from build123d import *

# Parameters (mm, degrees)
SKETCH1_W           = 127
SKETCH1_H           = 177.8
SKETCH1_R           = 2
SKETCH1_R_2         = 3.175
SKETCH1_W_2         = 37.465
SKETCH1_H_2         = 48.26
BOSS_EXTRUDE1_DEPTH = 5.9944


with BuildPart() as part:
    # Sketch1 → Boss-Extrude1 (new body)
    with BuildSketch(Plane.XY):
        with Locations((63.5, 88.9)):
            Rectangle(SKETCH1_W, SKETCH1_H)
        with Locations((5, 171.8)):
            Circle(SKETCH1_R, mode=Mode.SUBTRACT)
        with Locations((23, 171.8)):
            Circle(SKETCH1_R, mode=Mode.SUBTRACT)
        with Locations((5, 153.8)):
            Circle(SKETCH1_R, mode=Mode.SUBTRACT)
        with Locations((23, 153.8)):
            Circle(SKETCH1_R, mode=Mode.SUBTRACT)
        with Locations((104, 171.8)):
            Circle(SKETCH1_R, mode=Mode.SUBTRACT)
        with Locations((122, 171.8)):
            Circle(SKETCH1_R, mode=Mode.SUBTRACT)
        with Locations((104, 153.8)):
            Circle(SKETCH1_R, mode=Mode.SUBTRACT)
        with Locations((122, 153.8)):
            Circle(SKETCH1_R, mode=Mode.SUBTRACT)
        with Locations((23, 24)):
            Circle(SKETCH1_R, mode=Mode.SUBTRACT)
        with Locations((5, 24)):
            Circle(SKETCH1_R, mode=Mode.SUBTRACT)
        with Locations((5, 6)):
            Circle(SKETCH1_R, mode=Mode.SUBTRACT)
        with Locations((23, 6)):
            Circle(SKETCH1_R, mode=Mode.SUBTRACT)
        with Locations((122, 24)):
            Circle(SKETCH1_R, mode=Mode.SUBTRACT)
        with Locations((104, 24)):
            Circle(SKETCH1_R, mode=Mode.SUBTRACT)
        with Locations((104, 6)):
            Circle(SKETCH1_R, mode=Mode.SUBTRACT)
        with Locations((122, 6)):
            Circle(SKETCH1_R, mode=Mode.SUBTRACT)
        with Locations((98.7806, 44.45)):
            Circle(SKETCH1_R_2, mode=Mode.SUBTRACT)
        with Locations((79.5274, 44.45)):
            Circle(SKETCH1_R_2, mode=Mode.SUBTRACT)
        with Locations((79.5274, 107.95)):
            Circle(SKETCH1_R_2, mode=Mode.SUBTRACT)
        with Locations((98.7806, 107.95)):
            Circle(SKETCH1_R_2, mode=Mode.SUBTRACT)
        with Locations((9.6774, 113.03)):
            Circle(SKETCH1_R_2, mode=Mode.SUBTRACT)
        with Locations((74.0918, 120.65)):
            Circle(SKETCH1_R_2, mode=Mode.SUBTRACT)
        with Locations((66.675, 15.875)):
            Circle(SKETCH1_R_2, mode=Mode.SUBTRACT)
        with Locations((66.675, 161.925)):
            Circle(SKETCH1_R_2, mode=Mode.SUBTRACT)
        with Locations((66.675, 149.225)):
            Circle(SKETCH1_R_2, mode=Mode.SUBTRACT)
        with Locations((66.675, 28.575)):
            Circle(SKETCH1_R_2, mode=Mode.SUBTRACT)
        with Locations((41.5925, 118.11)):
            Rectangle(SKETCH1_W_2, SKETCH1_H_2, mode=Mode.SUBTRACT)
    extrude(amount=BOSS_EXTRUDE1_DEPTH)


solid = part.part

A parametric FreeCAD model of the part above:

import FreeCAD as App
import Part
import Sketcher
from FreeCAD import Vector
Q = App.Units.Quantity


def add_polygon(sketch, points):
    """Adds a closed chain of lines whose ends are joined by coincident constraints."""
    first, n = sketch.GeometryCount, len(points)
    for a, b in zip(points, points[1:] + points[:1]):
        sketch.addGeometry(Part.LineSegment(App.Vector(*a, 0), App.Vector(*b, 0)), False)
    for i in range(n):
        sketch.addConstraint(Sketcher.Constraint("Coincident", first + i, 2, first + (i + 1) % n, 1))

doc = App.newDocument("Part")
body = doc.addObject("PartDesign::Body", "Body")

# Sketch on XY plane
sketch1 = doc.addObject("Sketcher::SketchObject", "Sketch")
body.addObject(sketch1)
sketch1.AttachmentSupport = (doc.XY_Plane, [""])
sketch1.MapMode = "FlatFace"
add_polygon(sketch1, [(0, 177.8), (0, 0), (127, 0), (127, 177.8)])  # lines 0-3
sketch1.addGeometry(Part.Circle(Vector(5, 6, 0), Vector(0, 0, 1), 2), False)  # 4
sketch1.addGeometry(Part.Circle(Vector(5, 24, 0), Vector(0, 0, 1), 2), False)  # 5
sketch1.addGeometry(Part.Circle(Vector(23, 6, 0), Vector(0, 0, 1), 2), False)  # 6
sketch1.addGeometry(Part.Circle(Vector(23, 24, 0), Vector(0, 0, 1), 2), False)  # 7
sketch1.addGeometry(Part.Circle(Vector(66.7, 15.9, 0), Vector(0, 0, 1), 3.2), False)  # 8
sketch1.addGeometry(Part.Circle(Vector(66.7, 28.6, 0), Vector(0, 0, 1), 3.2), False)  # 9
sketch1.addGeometry(Part.Circle(Vector(79.5, 44.5, 0), Vector(0, 0, 1), 3.2), False)  # 10
sketch1.addGeometry(Part.Circle(Vector(104, 6, 0), Vector(0, 0, 1), 2), False)  # 11
sketch1.addGeometry(Part.Circle(Vector(104, 24, 0), Vector(0, 0, 1), 2), False)  # 12
sketch1.addGeometry(Part.Circle(Vector(122, 6, 0), Vector(0, 0, 1), 2), False)  # 13
sketch1.addGeometry(Part.Circle(Vector(122, 24, 0), Vector(0, 0, 1), 2), False)  # 14
sketch1.addGeometry(Part.Circle(Vector(98.8, 44.5, 0), Vector(0, 0, 1), 3.2), False)  # 15
sketch1.addGeometry(Part.Circle(Vector(9.7, 113, 0), Vector(0, 0, 1), 3.2), False)  # 16
add_polygon(sketch1, [(60.3, 94), (22.9, 94), (22.9, 142.2), (60.3, 142.2)])  # lines 17-20
sketch1.addGeometry(Part.Circle(Vector(5, 153.8, 0), Vector(0, 0, 1), 2), False)  # 21
sketch1.addGeometry(Part.Circle(Vector(5, 171.8, 0), Vector(0, 0, 1), 2), False)  # 22
sketch1.addGeometry(Part.Circle(Vector(23, 153.8, 0), Vector(0, 0, 1), 2), False)  # 23
sketch1.addGeometry(Part.Circle(Vector(23, 171.8, 0), Vector(0, 0, 1), 2), False)  # 24
sketch1.addGeometry(Part.Circle(Vector(79.5, 108, 0), Vector(0, 0, 1), 3.2), False)  # 25
sketch1.addGeometry(Part.Circle(Vector(74.1, 120.7, 0), Vector(0, 0, 1), 3.2), False)  # 26
sketch1.addGeometry(Part.Circle(Vector(98.8, 108, 0), Vector(0, 0, 1), 3.2), False)  # 27
sketch1.addGeometry(Part.Circle(Vector(66.7, 149.2, 0), Vector(0, 0, 1), 3.2), False)  # 28
sketch1.addGeometry(Part.Circle(Vector(66.7, 161.9, 0), Vector(0, 0, 1), 3.2), False)  # 29
sketch1.addGeometry(Part.Circle(Vector(104, 153.8, 0), Vector(0, 0, 1), 2), False)  # 30
sketch1.addGeometry(Part.Circle(Vector(104, 171.8, 0), Vector(0, 0, 1), 2), False)  # 31
sketch1.addGeometry(Part.Circle(Vector(122, 153.8, 0), Vector(0, 0, 1), 2), False)  # 32
sketch1.addGeometry(Part.Circle(Vector(122, 171.8, 0), Vector(0, 0, 1), 2), False)  # 33
sketch1.addConstraint([
    Sketcher.Constraint("Vertical", 0),
    Sketcher.Constraint("Horizontal", 1),
    Sketcher.Constraint("Vertical", 2),
    Sketcher.Constraint("Horizontal", 3),
    Sketcher.Constraint("Horizontal", 17),
    Sketcher.Constraint("Vertical", 18),
    Sketcher.Constraint("Horizontal", 19),
    Sketcher.Constraint("Vertical", 20),
    Sketcher.Constraint("Coincident", 0, 2, -1, 1),
    Sketcher.Constraint("Equal", 4, 5),
    Sketcher.Constraint("Equal", 5, 6),
    Sketcher.Constraint("Equal", 6, 7),
    Sketcher.Constraint("Equal", 8, 9),
    Sketcher.Constraint("Equal", 9, 10),
    Sketcher.Constraint("Equal", 7, 11),
    Sketcher.Constraint("Equal", 11, 12),
    Sketcher.Constraint("Equal", 12, 13),
    Sketcher.Constraint("Equal", 13, 14),
    Sketcher.Constraint("Equal", 10, 15),
    Sketcher.Constraint("Equal", 15, 16),
    Sketcher.Constraint("Equal", 14, 21),
    Sketcher.Constraint("Equal", 21, 22),
    Sketcher.Constraint("Equal", 22, 23),
    Sketcher.Constraint("Equal", 23, 24),
    Sketcher.Constraint("Equal", 16, 25),
    Sketcher.Constraint("Equal", 25, 26),
    Sketcher.Constraint("Equal", 26, 27),
    Sketcher.Constraint("Equal", 27, 28),
    Sketcher.Constraint("Equal", 28, 29),
    Sketcher.Constraint("Equal", 24, 30),
    Sketcher.Constraint("Equal", 30, 31),
    Sketcher.Constraint("Equal", 31, 32),
    Sketcher.Constraint("Equal", 32, 33),
    Sketcher.Constraint("Horizontal", 4, 3, 6, 3),
    Sketcher.Constraint("Horizontal", 5, 3, 7, 3),
    Sketcher.Constraint("Horizontal", 6, 3, 11, 3),
    Sketcher.Constraint("Horizontal", 7, 3, 12, 3),
    Sketcher.Constraint("Horizontal", 11, 3, 13, 3),
    Sketcher.Constraint("Horizontal", 12, 3, 14, 3),
    Sketcher.Constraint("Horizontal", 10, 3, 15, 3),
    Sketcher.Constraint("Horizontal", 21, 3, 23, 3),
    Sketcher.Constraint("Horizontal", 22, 3, 24, 3),
    Sketcher.Constraint("Horizontal", 25, 3, 27, 3),
    Sketcher.Constraint("Horizontal", 23, 3, 30, 3),
    Sketcher.Constraint("Horizontal", 24, 3, 31, 3),
    Sketcher.Constraint("Horizontal", 30, 3, 32, 3),
    Sketcher.Constraint("Horizontal", 31, 3, 33, 3),
    Sketcher.Constraint("Vertical", 4, 3, 5, 3),
    Sketcher.Constraint("Vertical", 6, 3, 7, 3),
    Sketcher.Constraint("Vertical", 8, 3, 9, 3),
    Sketcher.Constraint("Vertical", 11, 3, 12, 3),
    Sketcher.Constraint("Vertical", 13, 3, 14, 3),
    Sketcher.Constraint("Vertical", 5, 3, 21, 3),
    Sketcher.Constraint("Vertical", 21, 3, 22, 3),
    Sketcher.Constraint("Vertical", 7, 3, 23, 3),
    Sketcher.Constraint("Vertical", 23, 3, 24, 3),
    Sketcher.Constraint("Vertical", 10, 3, 25, 3),
    Sketcher.Constraint("Vertical", 15, 3, 27, 3),
    Sketcher.Constraint("Vertical", 9, 3, 28, 3),
    Sketcher.Constraint("Vertical", 28, 3, 29, 3),
    Sketcher.Constraint("Vertical", 12, 3, 30, 3),
    Sketcher.Constraint("Vertical", 30, 3, 31, 3),
    Sketcher.Constraint("Vertical", 14, 3, 32, 3),
    Sketcher.Constraint("Vertical", 32, 3, 33, 3),
    Sketcher.Constraint("Diameter", 8, Q("0.25 in")),
    Sketcher.Constraint("DistanceX", 1, 1, 1, 2, Q("5 in")),
    Sketcher.Constraint("DistanceY", 0, 2, 0, 1, Q("7 in")),
    Sketcher.Constraint("DistanceY", 18, 1, 18, 2, Q("1.9 in")),
    Sketcher.Constraint("DistanceY", 10, 3, 26, 3, Q("3 in")),
    Sketcher.Constraint("DistanceX", -1, 1, 17, 2, Q("0.9 in")),
    Sketcher.Constraint("DistanceY", -1, 1, 17, 2, Q("3.7 in")),
    Sketcher.Constraint("DistanceY", 8, 3, 9, 3, Q("0.5 in")),
    Sketcher.Constraint("DistanceY", 10, 3, 16, 3, Q("2.7 in")),
    Sketcher.Constraint("DistanceY", 10, 3, 25, 3, Q("2.5 in")),
    Sketcher.Constraint("DistanceY", 28, 3, 29, 3, Q("0.5 in")),
    Sketcher.Constraint("Diameter", 4, 4.0),
    Sketcher.Constraint("DistanceX", 17, 2, 17, 1, Q("1.475 in")),
    Sketcher.Constraint("DistanceY", -1, 1, 10, 3, Q("1.75 in")),
    Sketcher.Constraint("DistanceX", 16, 3, 10, 3, Q("2.75 in")),
    Sketcher.Constraint("DistanceX", 19, 2, 28, 3, Q("0.25 in")),
    Sketcher.Constraint("DistanceY", -1, 1, 8, 3, Q("0.625 in")),
    Sketcher.Constraint("DistanceX", -1, 1, 10, 3, Q("3.131 in")),
    Sketcher.Constraint("DistanceX", -1, 1, 15, 3, Q("3.889 in")),
    Sketcher.Constraint("DistanceX", -1, 1, 26, 3, Q("2.917 in")),
    Sketcher.Constraint("DistanceY", -1, 1, 28, 3, Q("5.875 in")),
    Sketcher.Constraint("DistanceX", -1, 1, 4, 3, 5.0),
    Sketcher.Constraint("DistanceY", -1, 1, 4, 3, 6.0),
    Sketcher.Constraint("DistanceY", -1, 1, 5, 3, 24.0),
    Sketcher.Constraint("DistanceX", -1, 1, 6, 3, 23.0),
    Sketcher.Constraint("DistanceX", -1, 1, 11, 3, 104.0),
    Sketcher.Constraint("DistanceX", -1, 1, 13, 3, 122.0),
    Sketcher.Constraint("DistanceY", -1, 1, 21, 3, 153.8),
    Sketcher.Constraint("DistanceY", -1, 1, 22, 3, 171.8),
])
pad1 = doc.addObject("PartDesign::Pad", "Pad")
body.addObject(pad1)
pad1.Profile = sketch1
pad1.Length = Q("0.236 in")

doc.recompute()
